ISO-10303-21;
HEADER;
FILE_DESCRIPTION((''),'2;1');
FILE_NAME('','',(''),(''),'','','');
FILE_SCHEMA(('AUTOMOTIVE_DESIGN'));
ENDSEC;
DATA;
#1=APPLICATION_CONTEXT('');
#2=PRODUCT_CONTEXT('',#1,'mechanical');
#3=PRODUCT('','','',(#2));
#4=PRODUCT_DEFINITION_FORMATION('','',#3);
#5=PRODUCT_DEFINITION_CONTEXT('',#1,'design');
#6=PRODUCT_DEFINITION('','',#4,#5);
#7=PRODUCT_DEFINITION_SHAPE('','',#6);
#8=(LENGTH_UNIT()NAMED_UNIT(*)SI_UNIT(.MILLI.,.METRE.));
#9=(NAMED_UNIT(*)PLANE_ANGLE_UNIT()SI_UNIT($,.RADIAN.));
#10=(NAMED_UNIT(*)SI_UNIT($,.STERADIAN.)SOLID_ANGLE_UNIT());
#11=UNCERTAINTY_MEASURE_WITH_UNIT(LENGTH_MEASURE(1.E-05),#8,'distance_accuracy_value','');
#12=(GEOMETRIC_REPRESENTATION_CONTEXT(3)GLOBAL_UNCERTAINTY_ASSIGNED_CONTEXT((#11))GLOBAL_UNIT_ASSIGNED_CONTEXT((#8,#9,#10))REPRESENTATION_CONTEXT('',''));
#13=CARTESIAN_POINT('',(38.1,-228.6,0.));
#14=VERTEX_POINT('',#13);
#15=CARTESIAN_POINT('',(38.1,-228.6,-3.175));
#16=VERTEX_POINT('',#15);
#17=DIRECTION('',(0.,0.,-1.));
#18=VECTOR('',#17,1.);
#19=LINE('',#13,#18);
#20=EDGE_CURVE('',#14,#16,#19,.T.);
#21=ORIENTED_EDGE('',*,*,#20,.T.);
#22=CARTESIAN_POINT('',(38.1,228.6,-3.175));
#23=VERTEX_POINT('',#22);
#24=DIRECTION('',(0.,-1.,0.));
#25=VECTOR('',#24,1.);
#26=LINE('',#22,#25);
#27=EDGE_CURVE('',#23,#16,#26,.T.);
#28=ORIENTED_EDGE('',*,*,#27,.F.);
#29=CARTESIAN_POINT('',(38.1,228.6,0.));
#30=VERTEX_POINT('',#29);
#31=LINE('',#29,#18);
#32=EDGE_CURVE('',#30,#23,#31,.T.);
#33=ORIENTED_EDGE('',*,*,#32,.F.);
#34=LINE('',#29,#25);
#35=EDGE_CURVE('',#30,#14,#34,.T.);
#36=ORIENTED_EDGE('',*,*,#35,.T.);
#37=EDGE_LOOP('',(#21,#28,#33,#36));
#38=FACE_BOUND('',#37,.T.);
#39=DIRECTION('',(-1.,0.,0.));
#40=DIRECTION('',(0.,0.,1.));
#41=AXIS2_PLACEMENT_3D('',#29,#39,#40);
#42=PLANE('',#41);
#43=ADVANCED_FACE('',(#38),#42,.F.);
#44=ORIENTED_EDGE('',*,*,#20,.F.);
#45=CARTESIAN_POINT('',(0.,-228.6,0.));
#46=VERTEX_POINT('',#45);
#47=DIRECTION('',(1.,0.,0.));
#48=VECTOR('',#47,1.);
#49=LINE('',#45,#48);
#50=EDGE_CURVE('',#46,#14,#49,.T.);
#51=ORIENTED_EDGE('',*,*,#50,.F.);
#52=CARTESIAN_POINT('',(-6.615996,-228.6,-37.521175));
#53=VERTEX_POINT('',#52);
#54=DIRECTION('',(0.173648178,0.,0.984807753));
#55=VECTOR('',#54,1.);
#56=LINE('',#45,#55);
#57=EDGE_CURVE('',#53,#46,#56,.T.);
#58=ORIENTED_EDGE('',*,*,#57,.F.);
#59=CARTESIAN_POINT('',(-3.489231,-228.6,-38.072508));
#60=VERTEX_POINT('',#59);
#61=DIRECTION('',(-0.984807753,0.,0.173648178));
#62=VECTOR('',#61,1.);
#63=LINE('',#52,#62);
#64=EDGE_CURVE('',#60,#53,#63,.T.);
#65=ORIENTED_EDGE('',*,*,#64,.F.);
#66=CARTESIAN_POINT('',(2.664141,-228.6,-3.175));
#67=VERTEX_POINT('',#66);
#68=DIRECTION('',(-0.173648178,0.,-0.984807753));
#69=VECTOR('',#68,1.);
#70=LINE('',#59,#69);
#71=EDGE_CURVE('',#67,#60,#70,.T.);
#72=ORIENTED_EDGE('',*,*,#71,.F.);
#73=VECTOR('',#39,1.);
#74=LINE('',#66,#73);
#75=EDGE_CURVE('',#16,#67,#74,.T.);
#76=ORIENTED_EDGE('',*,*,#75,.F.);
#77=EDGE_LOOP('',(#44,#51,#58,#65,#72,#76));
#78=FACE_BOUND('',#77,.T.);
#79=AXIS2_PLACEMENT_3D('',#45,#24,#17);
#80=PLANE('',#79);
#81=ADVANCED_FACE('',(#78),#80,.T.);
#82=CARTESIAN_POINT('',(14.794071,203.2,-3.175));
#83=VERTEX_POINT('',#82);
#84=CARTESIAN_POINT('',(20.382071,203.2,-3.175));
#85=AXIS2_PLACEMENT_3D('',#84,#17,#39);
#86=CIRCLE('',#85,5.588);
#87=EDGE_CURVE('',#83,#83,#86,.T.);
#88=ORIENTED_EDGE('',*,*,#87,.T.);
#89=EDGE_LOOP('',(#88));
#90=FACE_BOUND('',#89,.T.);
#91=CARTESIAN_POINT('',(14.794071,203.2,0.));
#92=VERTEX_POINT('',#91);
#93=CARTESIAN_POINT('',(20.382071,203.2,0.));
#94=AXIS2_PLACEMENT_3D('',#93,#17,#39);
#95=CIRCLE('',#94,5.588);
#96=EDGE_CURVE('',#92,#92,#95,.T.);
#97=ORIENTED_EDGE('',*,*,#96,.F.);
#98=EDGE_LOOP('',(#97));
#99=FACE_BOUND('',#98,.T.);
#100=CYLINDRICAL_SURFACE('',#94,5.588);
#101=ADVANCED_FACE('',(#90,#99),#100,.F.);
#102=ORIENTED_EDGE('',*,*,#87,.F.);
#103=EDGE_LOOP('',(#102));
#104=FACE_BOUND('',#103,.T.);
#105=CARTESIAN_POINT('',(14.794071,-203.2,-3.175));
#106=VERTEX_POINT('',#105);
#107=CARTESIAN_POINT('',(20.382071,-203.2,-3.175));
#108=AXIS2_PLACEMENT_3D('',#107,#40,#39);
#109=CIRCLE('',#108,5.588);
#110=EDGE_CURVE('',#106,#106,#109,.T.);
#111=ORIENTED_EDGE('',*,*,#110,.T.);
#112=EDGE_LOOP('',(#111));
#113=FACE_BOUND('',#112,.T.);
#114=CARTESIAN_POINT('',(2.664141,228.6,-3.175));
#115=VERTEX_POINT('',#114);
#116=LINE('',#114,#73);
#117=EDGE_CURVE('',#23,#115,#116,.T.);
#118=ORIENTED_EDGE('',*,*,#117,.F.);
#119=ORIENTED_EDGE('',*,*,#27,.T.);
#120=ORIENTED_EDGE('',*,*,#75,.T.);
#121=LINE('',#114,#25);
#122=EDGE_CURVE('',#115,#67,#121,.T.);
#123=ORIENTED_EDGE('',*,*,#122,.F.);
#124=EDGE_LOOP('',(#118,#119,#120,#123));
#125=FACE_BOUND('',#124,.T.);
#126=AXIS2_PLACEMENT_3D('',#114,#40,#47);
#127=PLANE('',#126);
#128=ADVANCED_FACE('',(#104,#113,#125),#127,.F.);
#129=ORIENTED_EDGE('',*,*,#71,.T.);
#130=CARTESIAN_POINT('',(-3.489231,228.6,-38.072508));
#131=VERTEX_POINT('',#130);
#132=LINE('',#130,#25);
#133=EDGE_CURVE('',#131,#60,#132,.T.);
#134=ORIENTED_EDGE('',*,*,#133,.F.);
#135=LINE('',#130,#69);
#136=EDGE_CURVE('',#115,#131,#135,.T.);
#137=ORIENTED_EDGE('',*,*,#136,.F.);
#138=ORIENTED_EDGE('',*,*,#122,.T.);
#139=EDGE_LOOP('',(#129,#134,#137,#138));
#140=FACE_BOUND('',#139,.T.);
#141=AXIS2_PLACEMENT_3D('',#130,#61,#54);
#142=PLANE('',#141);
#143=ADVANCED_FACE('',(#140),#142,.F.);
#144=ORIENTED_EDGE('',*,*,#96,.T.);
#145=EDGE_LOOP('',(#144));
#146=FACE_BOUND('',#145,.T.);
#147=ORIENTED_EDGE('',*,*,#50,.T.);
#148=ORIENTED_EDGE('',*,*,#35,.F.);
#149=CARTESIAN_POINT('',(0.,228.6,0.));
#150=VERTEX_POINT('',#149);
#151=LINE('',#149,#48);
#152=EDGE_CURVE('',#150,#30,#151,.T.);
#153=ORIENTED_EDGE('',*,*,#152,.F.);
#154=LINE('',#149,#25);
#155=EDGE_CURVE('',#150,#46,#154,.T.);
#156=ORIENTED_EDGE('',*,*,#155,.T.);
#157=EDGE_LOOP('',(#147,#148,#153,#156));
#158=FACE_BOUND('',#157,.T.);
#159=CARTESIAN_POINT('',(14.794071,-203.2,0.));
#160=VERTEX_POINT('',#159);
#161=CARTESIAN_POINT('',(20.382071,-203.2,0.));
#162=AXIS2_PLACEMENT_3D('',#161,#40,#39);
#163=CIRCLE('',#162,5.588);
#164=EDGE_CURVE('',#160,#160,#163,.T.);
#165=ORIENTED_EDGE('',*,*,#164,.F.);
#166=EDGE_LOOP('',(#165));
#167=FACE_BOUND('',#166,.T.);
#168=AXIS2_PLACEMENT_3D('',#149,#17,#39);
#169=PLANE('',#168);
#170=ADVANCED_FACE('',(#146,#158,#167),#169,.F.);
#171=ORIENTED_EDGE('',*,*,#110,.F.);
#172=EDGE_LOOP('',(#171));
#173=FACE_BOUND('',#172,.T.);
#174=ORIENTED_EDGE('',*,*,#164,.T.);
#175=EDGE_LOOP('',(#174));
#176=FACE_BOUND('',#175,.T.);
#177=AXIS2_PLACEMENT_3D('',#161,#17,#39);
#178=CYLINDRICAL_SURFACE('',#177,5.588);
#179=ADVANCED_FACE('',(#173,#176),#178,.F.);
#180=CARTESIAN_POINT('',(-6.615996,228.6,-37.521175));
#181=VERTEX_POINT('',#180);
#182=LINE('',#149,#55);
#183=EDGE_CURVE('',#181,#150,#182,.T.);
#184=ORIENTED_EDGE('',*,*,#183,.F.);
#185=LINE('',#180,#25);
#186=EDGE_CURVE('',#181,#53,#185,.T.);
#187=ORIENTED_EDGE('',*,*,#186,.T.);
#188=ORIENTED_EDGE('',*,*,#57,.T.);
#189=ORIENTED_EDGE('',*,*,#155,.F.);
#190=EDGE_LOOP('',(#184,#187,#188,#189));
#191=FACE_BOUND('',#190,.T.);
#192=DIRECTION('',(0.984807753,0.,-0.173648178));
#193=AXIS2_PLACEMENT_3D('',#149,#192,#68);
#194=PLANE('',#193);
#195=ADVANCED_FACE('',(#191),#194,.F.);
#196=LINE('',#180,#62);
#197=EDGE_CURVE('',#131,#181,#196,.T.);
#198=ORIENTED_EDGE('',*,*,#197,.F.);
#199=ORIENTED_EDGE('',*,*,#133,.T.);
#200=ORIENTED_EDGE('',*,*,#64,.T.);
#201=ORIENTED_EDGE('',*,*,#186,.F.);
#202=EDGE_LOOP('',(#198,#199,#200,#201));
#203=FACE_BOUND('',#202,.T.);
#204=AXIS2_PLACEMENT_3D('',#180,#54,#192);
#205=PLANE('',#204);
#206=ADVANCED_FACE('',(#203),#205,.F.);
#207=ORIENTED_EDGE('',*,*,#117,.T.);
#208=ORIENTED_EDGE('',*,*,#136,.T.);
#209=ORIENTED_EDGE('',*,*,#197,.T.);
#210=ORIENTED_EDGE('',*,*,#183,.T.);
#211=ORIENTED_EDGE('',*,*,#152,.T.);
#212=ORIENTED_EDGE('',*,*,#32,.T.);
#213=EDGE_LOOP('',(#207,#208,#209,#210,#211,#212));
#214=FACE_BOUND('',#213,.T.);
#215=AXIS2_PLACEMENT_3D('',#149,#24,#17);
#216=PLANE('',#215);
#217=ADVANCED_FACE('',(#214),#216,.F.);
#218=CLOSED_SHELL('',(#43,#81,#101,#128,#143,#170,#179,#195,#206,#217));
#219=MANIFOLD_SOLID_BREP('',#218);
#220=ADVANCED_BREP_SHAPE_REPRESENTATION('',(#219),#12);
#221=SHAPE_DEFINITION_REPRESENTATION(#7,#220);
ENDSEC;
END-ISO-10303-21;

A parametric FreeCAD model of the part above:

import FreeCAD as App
import Part
import Sketcher
Q = App.Units.Quantity

doc = App.newDocument("Part")
params = doc.addObject("Spreadsheet::Sheet", "Params")
for row, (alias, value) in enumerate([
    ("sketch1_width", "1.5 in"),
    ("sketch1_length", "1.5 in"),
    ("sketch1_height", "0.125 in"),
    ("sketch1_length2", "0.125 in"),
    ("pad1_length", "18 in"),
    ("sketch2_diameter", "0.44 in"),
], start=1):
    params.set(f"A{row}", alias)
    params.set(f"B{row}", "=" + value)
    params.setAlias(f"B{row}", alias)

body = doc.addObject("PartDesign::Body", "Body")

sketch1 = body.newObject("Sketcher::SketchObject", "Sketch")
sketch1.AttachmentSupport = (doc.getObject("XZ_Plane"), [""])
sketch1.MapMode = "FlatFace"
sketch1.addGeometry(Part.LineSegment(App.Vector(2.664141, -3.175, 0), App.Vector(-3.489231, -38.072508, 0)), False)
sketch1.addGeometry(Part.LineSegment(App.Vector(-3.489231, -38.072508, 0), App.Vector(-6.615996, -37.521175, 0)), False)
sketch1.addGeometry(Part.LineSegment(App.Vector(-6.615996, -37.521175, 0), App.Vector(0, 0, 0)), False)
sketch1.addGeometry(Part.LineSegment(App.Vector(0, 0, 0), App.Vector(38.1, 0, 0)), False)
sketch1.addGeometry(Part.LineSegment(App.Vector(38.1, 0, 0), App.Vector(38.1, -3.175, 0)), False)
sketch1.addGeometry(Part.LineSegment(App.Vector(38.1, -3.175, 0), App.Vector(2.664141, -3.175, 0)), False)
sketch1.addConstraint(Sketcher.Constraint("Coincident", 0, 2, 1, 1))
sketch1.addConstraint(Sketcher.Constraint("Coincident", 1, 2, 2, 1))
sketch1.addConstraint(Sketcher.Constraint("Coincident", 2, 2, 3, 1))
sketch1.addConstraint(Sketcher.Constraint("Coincident", 3, 2, 4, 1))
sketch1.addConstraint(Sketcher.Constraint("Coincident", 4, 2, 5, 1))
sketch1.addConstraint(Sketcher.Constraint("Coincident", 5, 2, 0, 1))
sketch1.addConstraint(Sketcher.Constraint("Horizontal", 3))
sketch1.addConstraint(Sketcher.Constraint("Vertical", 4))
sketch1.addConstraint(Sketcher.Constraint("Horizontal", 5))
sketch1.addConstraint(Sketcher.Constraint("Coincident", 2, 2, -1, 1))
sketch1.addConstraint(Sketcher.Constraint("Perpendicular", 0, 1))
sketch1.addConstraint(Sketcher.Constraint("Perpendicular", 1, 2))
sketch1.addConstraint(Sketcher.Constraint("DistanceX", 3, 1, 3, 2, Q("1.5 in")))
sketch1.addConstraint(Sketcher.Constraint("Angle", 0, Q("-100 deg")))
sketch1.addConstraint(Sketcher.Constraint("Distance", 2, Q("1.5 in")))
sketch1.addConstraint(Sketcher.Constraint("DistanceY", 4, 2, 4, 1, Q("0.125 in")))
sketch1.addConstraint(Sketcher.Constraint("Distance", 1, Q("0.125 in")))
sketch1.setExpression("Constraints[12]", "Params.sketch1_width")
sketch1.setExpression("Constraints[14]", "Params.sketch1_length")
sketch1.setExpression("Constraints[15]", "Params.sketch1_height")
sketch1.setExpression("Constraints[16]", "Params.sketch1_length2")
pad1 = body.newObject("PartDesign::Pad", "Pad")
pad1.Profile = sketch1
pad1.setExpression("Length", "Params.pad1_length")
pad1.Midplane = True

sketch2 = body.newObject("Sketcher::SketchObject", "Sketch001")
sketch2.AttachmentSupport = (doc.getObject("XY_Plane"), [""])
sketch2.MapMode = "FlatFace"
sketch2.AttachmentOffset = App.Placement(App.Vector(0, 0, -0.125 * 25.4), App.Rotation())
sketch2.addGeometry(Part.Circle(App.Vector(20.382071, 203.2, 0), App.Vector(0, 0, 1), 5.588), False)
sketch2.addConstraint(Sketcher.Constraint("Diameter", 0, Q("0.44 in")))
sketch2.addConstraint(Sketcher.Constraint("DistanceY", -1, 1, 0, 3, Q("8 in")))
sketch2.addConstraint(Sketcher.Constraint("DistanceX", -1, 1, 0, 3, Q("20.382071 mm")))
sketch2.setExpression("Constraints[0]", "Params.sketch2_diameter")
pocket1 = body.newObject("PartDesign::Pocket", "Pocket")
pocket1.Profile = sketch2
pocket1.Type = "ThroughAll"
pocket1.Reversed = True
doc.recompute()

mirrored = body.newObject("PartDesign::Mirrored", "Mirrored")
mirrored.Originals = [pocket1]
mirrored.MirrorPlane = (doc.getObject("XZ_Plane"), [""])
body.Tip = mirrored

doc.recompute()
